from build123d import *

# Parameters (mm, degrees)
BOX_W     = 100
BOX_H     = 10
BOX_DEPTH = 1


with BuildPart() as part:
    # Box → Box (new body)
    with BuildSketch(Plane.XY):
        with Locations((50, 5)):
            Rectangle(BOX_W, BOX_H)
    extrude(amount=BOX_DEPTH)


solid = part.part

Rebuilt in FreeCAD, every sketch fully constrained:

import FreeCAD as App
import Part
import Sketcher
from FreeCAD import Vector


def add_polygon(sketch, points):
    """Adds a closed chain of lines whose ends are joined by coincident constraints."""
    first, n = sketch.GeometryCount, len(points)
    for a, b in zip(points, points[1:] + points[:1]):
        sketch.addGeometry(Part.LineSegment(App.Vector(*a, 0), App.Vector(*b, 0)), False)
    for i in range(n):
        sketch.addConstraint(Sketcher.Constraint("Coincident", first + i, 2, first + (i + 1) % n, 1))

doc = App.newDocument("Part")
body = doc.addObject("PartDesign::Body", "Body")

# Sketch on XY plane
sketch1 = body.newObject("Sketcher::SketchObject", "Sketch")
sketch1.AttachmentSupport = (doc.getObject("XY_Plane"), [""])
sketch1.MapMode = "FlatFace"
add_polygon(sketch1, [(0, 10), (0, 0), (100, 0), (100, 10)])  # lines 0-3
sketch1.addConstraint([
    Sketcher.Constraint("Vertical", 0),
    Sketcher.Constraint("Horizontal", 1),
    Sketcher.Constraint("Vertical", 2),
    Sketcher.Constraint("Horizontal", 3),
    Sketcher.Constraint("Coincident", 0, 2, -1, 1),
    Sketcher.Constraint("DistanceX", 1, 1, 1, 2, 100.0),
    Sketcher.Constraint("DistanceY", 0, 2, 0, 1, 10.0),
])
pad1 = body.newObject("PartDesign::Pad", "Pad")
pad1.Profile = sketch1
pad1.Length = 1

doc.recompute()
